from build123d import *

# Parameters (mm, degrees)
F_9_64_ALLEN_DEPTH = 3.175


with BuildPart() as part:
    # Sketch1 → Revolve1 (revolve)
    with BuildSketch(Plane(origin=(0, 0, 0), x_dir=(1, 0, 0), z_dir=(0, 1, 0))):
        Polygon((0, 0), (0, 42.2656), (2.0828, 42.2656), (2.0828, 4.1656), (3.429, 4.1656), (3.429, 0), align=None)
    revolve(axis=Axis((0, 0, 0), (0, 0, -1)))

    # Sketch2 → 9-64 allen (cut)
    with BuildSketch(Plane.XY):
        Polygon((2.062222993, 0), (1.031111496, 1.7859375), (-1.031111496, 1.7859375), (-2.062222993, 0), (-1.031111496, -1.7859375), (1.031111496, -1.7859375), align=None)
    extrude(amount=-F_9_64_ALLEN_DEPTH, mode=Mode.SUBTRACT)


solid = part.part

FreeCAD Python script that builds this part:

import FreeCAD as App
import Part
import Sketcher

V = App.Vector
Q = App.Units.Quantity


def add_polygon(sketch, points):
    """Adds a closed chain of lines whose ends are joined by coincident constraints."""
    first, n = sketch.GeometryCount, len(points)
    for a, b in zip(points, points[1:] + points[:1]):
        sketch.addGeometry(Part.LineSegment(App.Vector(*a, 0), App.Vector(*b, 0)), False)
    for i in range(n):
        sketch.addConstraint(Sketcher.Constraint("Coincident", first + i, 2, first + (i + 1) % n, 1))

doc = App.newDocument("Part")
body = doc.addObject("PartDesign::Body", "Body")

# Sketch on XZ plane
sketch1 = body.newObject("Sketcher::SketchObject", "Sketch")
sketch1.AttachmentSupport = (doc.getObject("XZ_Plane"), [""])
sketch1.MapMode = "FlatFace"
add_polygon(sketch1, [(0, -42.2656), (0, 0), (3.429, 0), (3.429, -4.1656), (2.0828, -4.1656), (2.0828, -42.2656)])  # lines 0-5
sketch1.addConstraint([
    Sketcher.Constraint("Vertical", 0),
    Sketcher.Constraint("Horizontal", 1),
    Sketcher.Constraint("Vertical", 2),
    Sketcher.Constraint("Horizontal", 3),
    Sketcher.Constraint("Vertical", 4),
    Sketcher.Constraint("Horizontal", 5),
    Sketcher.Constraint("Coincident", 0, 2, -1, 1),
    Sketcher.Constraint("DistanceY", 4, 2, 4, 1, Q("1.5 in")),
    Sketcher.Constraint("DistanceX", 1, 1, 1, 2, Q("0.135 in")),
    Sketcher.Constraint("DistanceX", 3, 2, 3, 1, Q("0.053 in")),
    Sketcher.Constraint("DistanceY", 0, 1, 0, 2, Q("1.664 in")),
])
revolution = body.newObject("PartDesign::Revolution", "Revolution")
revolution.Profile = sketch1
revolution.ReferenceAxis = (sketch1, ["V_Axis"])
revolution.Angle = 360

# Sketch on XY plane
sketch2 = body.newObject("Sketcher::SketchObject", "Sketch001")
sketch2.AttachmentSupport = (doc.getObject("XY_Plane"), [""])
sketch2.MapMode = "FlatFace"
add_polygon(sketch2, [(2.062223, 0), (1.031111, 1.785937), (-1.031111, 1.785937), (-2.062223, 0), (-1.031111, -1.785937), (1.031111, -1.785937)])  # lines 0-5
sketch2.addConstraint([
    Sketcher.Constraint("Horizontal", 1),
    Sketcher.Constraint("Horizontal", 4),
    Sketcher.Constraint("Symmetric", 0, 2, 3, 2, -1, 1),
    Sketcher.Constraint("Symmetric", 2, 2, 5, 2, -1, 1),
    Sketcher.Constraint("PointOnObject", 2, 2, -1),
    Sketcher.Constraint("Parallel", 2, 5),
    Sketcher.Constraint("Vertical", 1, 2, 3, 2),
    Sketcher.Constraint("Angle", 0, Q("120 deg")),
    Sketcher.Constraint("DistanceY", 3, 2, 1, 2, Q("0.140625 in")),
    Sketcher.Constraint("DistanceX", 1, 2, 1, 1, Q("2.062223 mm")),
])
pocket1 = body.newObject("PartDesign::Pocket", "Pocket")
pocket1.Profile = sketch2
pocket1.Length = Q("0.125 in")

doc.recompute()
